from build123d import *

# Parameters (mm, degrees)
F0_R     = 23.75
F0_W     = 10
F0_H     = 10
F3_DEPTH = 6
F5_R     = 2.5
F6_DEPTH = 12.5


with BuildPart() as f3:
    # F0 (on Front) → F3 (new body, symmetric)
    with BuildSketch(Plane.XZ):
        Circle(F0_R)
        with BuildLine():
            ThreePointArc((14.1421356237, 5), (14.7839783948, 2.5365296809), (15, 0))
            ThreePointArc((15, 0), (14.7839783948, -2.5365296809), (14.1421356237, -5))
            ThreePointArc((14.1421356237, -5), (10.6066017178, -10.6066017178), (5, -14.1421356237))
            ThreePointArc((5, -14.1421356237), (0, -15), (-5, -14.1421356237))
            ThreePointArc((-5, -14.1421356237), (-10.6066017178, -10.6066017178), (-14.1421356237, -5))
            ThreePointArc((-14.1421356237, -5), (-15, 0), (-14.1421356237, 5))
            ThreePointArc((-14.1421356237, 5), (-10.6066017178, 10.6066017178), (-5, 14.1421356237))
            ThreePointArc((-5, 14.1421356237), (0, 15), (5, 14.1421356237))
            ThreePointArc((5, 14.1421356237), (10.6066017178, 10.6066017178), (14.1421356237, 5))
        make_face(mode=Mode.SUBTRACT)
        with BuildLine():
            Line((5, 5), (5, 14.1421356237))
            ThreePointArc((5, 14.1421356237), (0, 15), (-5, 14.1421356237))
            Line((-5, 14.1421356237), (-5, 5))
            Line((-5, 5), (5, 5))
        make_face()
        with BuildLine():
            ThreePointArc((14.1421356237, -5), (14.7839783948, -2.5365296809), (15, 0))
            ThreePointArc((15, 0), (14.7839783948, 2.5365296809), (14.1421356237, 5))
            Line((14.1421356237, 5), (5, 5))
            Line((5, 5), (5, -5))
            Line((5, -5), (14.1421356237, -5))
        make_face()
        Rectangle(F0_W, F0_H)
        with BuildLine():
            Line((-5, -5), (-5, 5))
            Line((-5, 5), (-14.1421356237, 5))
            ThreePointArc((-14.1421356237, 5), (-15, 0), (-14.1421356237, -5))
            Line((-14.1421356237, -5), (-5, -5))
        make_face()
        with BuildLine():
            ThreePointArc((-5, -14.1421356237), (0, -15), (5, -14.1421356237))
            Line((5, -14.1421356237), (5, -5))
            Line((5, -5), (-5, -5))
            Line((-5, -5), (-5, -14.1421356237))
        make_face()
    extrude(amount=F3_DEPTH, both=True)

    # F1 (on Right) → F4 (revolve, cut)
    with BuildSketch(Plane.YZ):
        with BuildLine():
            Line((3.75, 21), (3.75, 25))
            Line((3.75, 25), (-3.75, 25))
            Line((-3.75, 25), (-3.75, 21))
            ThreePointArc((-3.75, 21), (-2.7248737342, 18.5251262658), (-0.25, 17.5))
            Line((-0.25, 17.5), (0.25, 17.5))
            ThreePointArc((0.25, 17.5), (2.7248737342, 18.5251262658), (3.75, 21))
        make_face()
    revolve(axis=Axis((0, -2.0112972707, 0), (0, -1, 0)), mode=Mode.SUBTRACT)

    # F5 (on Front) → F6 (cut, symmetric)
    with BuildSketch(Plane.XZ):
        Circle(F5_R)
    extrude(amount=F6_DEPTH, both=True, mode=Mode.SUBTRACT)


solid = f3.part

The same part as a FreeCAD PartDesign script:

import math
import FreeCAD as App
import Part
import Sketcher
from FreeCAD import Vector
Q = App.Units.Quantity

doc = App.newDocument("Part")
body = doc.addObject("PartDesign::Body", "Body")

sketch1 = body.newObject("Sketcher::SketchObject", "Sketch")
sketch1.AttachmentSupport = (doc.getObject("XZ_Plane"), [""])
sketch1.MapMode = "FlatFace"
sketch1.addGeometry([
    Part.Circle(Vector(0, 0, 0), Vector(0, 0, 1), 24),
    Part.LineSegment(Vector(-5, 14, 0), Vector(-5, 5, 0)),
    Part.LineSegment(Vector(-5, 5, 0), Vector(-14, 5, 0)),
    Part.ArcOfCircle(Part.Circle(Vector(0, 0, 0), Vector(0, 0, 1), 15), math.radians(109), math.radians(161)),
    Part.ArcOfCircle(Part.Circle(Vector(0, 0, 0), Vector(0, 0, 1), 15), math.radians(-71), math.radians(-19)),
    Part.LineSegment(Vector(5, -14, 0), Vector(5, -5, 0)),
    Part.LineSegment(Vector(5, -5, 0), Vector(14, -5, 0)),
    Part.ArcOfCircle(Part.Circle(Vector(0, 0, 0), Vector(0, 0, 1), 15), math.radians(-161), math.radians(-109)),
    Part.LineSegment(Vector(-14, -5, 0), Vector(-5, -5, 0)),
    Part.LineSegment(Vector(-5, -5, 0), Vector(-5, -14, 0)),
    Part.LineSegment(Vector(14, 5, 0), Vector(5, 5, 0)),
    Part.LineSegment(Vector(5, 5, 0), Vector(5, 14, 0)),
    Part.ArcOfCircle(Part.Circle(Vector(0, 0, 0), Vector(0, 0, 1), 15), math.radians(19), math.radians(71)),
], False)
sketch1.addConstraint([
    Sketcher.Constraint("Coincident", 1, 2, 2, 1),
    Sketcher.Constraint("Coincident", 2, 2, 3, 2),
    Sketcher.Constraint("Coincident", 3, 1, 1, 1),
    Sketcher.Constraint("Coincident", 4, 1, 5, 1),
    Sketcher.Constraint("Coincident", 5, 2, 6, 1),
    Sketcher.Constraint("Coincident", 6, 2, 4, 2),
    Sketcher.Constraint("Coincident", 7, 1, 8, 1),
    Sketcher.Constraint("Coincident", 8, 2, 9, 1),
    Sketcher.Constraint("Coincident", 9, 2, 7, 2),
    Sketcher.Constraint("Coincident", 10, 2, 11, 1),
    Sketcher.Constraint("Coincident", 11, 2, 12, 2),
    Sketcher.Constraint("Coincident", 12, 1, 10, 1),
    Sketcher.Constraint("Vertical", 1),
    Sketcher.Constraint("Horizontal", 2),
    Sketcher.Constraint("Vertical", 5),
    Sketcher.Constraint("Horizontal", 6),
    Sketcher.Constraint("Horizontal", 8),
    Sketcher.Constraint("Vertical", 9),
    Sketcher.Constraint("Horizontal", 10),
    Sketcher.Constraint("Vertical", 11),
    Sketcher.Constraint("Coincident", 0, 3, -1, 1),
    Sketcher.Constraint("Coincident", 3, 3, -1, 1),
    Sketcher.Constraint("Coincident", 4, 3, -1, 1),
    Sketcher.Constraint("Coincident", 7, 3, -1, 1),
    Sketcher.Constraint("Coincident", 12, 3, -1, 1),
    Sketcher.Constraint("Equal", 3, 4),
    Sketcher.Constraint("Equal", 4, 7),
    Sketcher.Constraint("Equal", 7, 12),
    Sketcher.Constraint("Symmetric", 1, 2, 5, 2, -1, 1),
    Sketcher.Constraint("Symmetric", 8, 2, 10, 2, -1, 1),
    Sketcher.Constraint("Symmetric", 5, 2, 8, 2, -2),
    Sketcher.Constraint("Equal", 10, 1),
    Sketcher.Constraint("Radius", 3, Q("15 mm")),
    Sketcher.Constraint("Diameter", 0, Q("47.5 mm")),
    Sketcher.Constraint("DistanceX", 1, 2, -1, 1, Q("5 mm")),
])
pad1 = body.newObject("PartDesign::Pad", "Pad")
pad1.Profile = sketch1
pad1.Length = 12
pad1.Midplane = True

sketch2 = body.newObject("Sketcher::SketchObject", "Sketch001")
sketch2.AttachmentSupport = (doc.getObject("YZ_Plane"), [""])
sketch2.MapMode = "FlatFace"
sketch2.addGeometry([
    Part.LineSegment(Vector(3.8, 21, 0), Vector(3.8, 25, 0)),
    Part.LineSegment(Vector(3.8, 25, 0), Vector(-3.8, 25, 0)),
    Part.LineSegment(Vector(-3.8, 25, 0), Vector(-3.8, 21, 0)),
    Part.ArcOfCircle(Part.Circle(Vector(-0.2, 21, 0), Vector(0, 0, 1), 3.5), math.radians(180), math.radians(270)),
    Part.LineSegment(Vector(-0.2, 17.5, 0), Vector(0.2, 17.5, 0)),
    Part.ArcOfCircle(Part.Circle(Vector(0.2, 21, 0), Vector(0, 0, 1), 3.5), math.radians(-90), math.radians(0)),
], False)
sketch2.addConstraint([
    Sketcher.Constraint("Coincident", 0, 2, 1, 1),
    Sketcher.Constraint("Coincident", 1, 2, 2, 1),
    Sketcher.Constraint("Tangent", 2, 2, 3, 1),
    Sketcher.Constraint("Tangent", 3, 2, 4, 1),
    Sketcher.Constraint("Tangent", 4, 2, 5, 1),
    Sketcher.Constraint("Tangent", 5, 2, 0, 1),
    Sketcher.Constraint("Vertical", 0),
    Sketcher.Constraint("Horizontal", 1),
    Sketcher.Constraint("Vertical", 2),
    Sketcher.Constraint("Horizontal", 4),
    Sketcher.Constraint("Equal", 3, 5),
    Sketcher.Constraint("Radius", 3, Q("3.5 mm")),
    Sketcher.Constraint("DistanceY", 0, 1, 0, 2, Q("4 mm")),
    Sketcher.Constraint("DistanceX", 1, 2, 1, 1, Q("7.5 mm")),
    Sketcher.Constraint("DistanceY", -1, 1, 3, 3, Q("21 mm")),
    Sketcher.Constraint("DistanceX", 3, 3, -1, 1, Q("0.25 mm")),
])
groove = body.newObject("PartDesign::Groove", "Groove")
groove.Profile = sketch2
groove.ReferenceAxis = (sketch2, ["H_Axis"])
groove.Angle = 360

sketch3 = body.newObject("Sketcher::SketchObject", "Sketch002")
sketch3.AttachmentSupport = (doc.getObject("XZ_Plane"), [""])
sketch3.MapMode = "FlatFace"
sketch3.addGeometry(Part.Circle(Vector(0, 0, 0), Vector(0, 0, 1), 2.5), False)
sketch3.addConstraint([
    Sketcher.Constraint("Coincident", 0, 3, -1, 1),
    Sketcher.Constraint("Diameter", 0, Q("5 mm")),
])
pocket1 = body.newObject("PartDesign::Pocket", "Pocket")
pocket1.Profile = sketch3
pocket1.Length = 25
pocket1.Midplane = True

doc.recompute()
